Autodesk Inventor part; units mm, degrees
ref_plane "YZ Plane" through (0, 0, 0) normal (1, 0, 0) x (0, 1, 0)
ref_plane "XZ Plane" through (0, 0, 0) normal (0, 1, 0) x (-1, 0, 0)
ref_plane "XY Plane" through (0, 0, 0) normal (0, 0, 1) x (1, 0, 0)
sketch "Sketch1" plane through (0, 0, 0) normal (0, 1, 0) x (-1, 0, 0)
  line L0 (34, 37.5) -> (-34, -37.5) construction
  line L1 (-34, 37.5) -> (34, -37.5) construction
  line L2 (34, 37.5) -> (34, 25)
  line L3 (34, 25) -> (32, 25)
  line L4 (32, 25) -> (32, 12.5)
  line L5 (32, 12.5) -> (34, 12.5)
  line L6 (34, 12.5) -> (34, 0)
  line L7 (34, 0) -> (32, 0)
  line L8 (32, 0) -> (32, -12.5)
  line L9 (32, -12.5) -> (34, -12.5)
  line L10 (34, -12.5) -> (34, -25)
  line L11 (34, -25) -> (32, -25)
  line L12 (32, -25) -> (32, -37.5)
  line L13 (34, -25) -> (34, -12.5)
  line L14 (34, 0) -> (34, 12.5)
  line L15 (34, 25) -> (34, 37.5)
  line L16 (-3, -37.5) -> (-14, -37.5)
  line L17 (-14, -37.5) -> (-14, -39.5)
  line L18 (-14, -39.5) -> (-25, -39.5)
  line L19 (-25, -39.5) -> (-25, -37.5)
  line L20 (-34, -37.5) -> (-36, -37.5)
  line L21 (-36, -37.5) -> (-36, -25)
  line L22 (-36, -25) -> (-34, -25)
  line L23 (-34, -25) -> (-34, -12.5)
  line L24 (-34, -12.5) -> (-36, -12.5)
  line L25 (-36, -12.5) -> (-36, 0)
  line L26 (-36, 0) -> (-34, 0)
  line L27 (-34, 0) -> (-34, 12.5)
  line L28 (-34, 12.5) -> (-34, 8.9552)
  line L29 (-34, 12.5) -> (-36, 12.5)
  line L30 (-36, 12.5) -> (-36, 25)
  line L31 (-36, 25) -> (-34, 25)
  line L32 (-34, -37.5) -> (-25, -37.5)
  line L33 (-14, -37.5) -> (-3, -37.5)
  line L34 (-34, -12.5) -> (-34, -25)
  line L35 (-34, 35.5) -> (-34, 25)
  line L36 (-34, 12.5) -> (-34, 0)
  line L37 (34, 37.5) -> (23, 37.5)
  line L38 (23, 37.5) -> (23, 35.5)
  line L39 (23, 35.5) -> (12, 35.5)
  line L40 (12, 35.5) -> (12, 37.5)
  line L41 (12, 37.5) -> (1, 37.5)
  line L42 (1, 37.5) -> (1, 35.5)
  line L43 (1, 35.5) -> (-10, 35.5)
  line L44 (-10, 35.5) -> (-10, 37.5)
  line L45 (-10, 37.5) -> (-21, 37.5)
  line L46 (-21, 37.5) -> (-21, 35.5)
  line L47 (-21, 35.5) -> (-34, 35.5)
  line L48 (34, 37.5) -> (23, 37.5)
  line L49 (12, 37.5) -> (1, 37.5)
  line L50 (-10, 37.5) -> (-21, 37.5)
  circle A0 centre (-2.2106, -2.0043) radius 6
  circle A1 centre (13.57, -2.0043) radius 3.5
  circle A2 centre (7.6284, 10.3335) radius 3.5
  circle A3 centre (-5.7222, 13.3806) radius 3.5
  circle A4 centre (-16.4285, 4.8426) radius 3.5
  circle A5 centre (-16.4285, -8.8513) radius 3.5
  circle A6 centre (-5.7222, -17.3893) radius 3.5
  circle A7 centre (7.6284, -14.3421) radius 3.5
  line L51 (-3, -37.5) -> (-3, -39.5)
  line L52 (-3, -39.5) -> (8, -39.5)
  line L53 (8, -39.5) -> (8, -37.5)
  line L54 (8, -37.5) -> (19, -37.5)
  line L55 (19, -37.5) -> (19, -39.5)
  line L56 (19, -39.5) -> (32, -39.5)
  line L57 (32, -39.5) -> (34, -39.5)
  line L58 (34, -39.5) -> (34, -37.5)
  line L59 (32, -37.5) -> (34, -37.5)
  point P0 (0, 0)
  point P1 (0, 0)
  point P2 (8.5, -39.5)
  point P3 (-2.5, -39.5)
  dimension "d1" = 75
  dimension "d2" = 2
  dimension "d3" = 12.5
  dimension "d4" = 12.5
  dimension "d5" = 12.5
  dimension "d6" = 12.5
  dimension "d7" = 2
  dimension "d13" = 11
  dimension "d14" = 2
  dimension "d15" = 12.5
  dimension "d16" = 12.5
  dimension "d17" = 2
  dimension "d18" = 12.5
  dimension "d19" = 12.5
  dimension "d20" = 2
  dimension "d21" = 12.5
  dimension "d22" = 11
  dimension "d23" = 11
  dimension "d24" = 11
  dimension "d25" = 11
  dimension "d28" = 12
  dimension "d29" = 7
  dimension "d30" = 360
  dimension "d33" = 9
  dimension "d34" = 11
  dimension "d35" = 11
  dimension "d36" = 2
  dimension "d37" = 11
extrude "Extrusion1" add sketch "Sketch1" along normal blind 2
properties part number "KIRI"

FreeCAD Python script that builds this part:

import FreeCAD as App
import Part
import Sketcher


def add_polygon(sketch, points):
    """Adds a closed chain of lines whose ends are joined by coincident constraints."""
    first, n = sketch.GeometryCount, len(points)
    for a, b in zip(points, points[1:] + points[:1]):
        sketch.addGeometry(Part.LineSegment(App.Vector(*a, 0), App.Vector(*b, 0)), False)
    for i in range(n):
        sketch.addConstraint(Sketcher.Constraint("Coincident", first + i, 2, first + (i + 1) % n, 1))

doc = App.newDocument("Part")
params = doc.addObject("Spreadsheet::Sheet", "Params")
for row, (alias, value) in enumerate([
    ("sketch1_diameter", "7 mm"),
    ("sketch1_diameter2", "12 mm"),
    ("sketch1_width", "11 mm"),
    ("sketch1_width2", "2 mm"),
    ("sketch1_height", "12.5 mm"),
    ("pad1_length", "2 mm"),
], start=1):
    params.set(f"A{row}", alias)
    params.set(f"B{row}", "=" + value)
    params.setAlias(f"B{row}", alias)

body = doc.addObject("PartDesign::Body", "Body")

sketch1 = body.newObject("Sketcher::SketchObject", "Sketch")
sketch1.AttachmentSupport = (doc.getObject("XZ_Plane"), [""])
sketch1.MapMode = "FlatFace"
add_polygon(sketch1, [(-34, 25), (-34, 37.5), (-23, 37.5), (-23, 35.5), (-12, 35.5), (-12, 37.5), (-1, 37.5), (-1, 35.5), (10, 35.5), (10, 37.5), (21, 37.5), (21, 35.5), (34, 35.5), (34, 25), (36, 25), (36, 12.5), (34, 12.5), (34, 0), (36, 0), (36, -12.5), (34, -12.5), (34, -25), (36, -25), (36, -37.5), (25, -37.5), (25, -39.5), (14, -39.5), (14, -37.5), (3, -37.5), (3, -39.5), (-8, -39.5), (-8, -37.5), (-19, -37.5), (-19, -39.5), (-34, -39.5), (-34, -37.5), (-32, -37.5), (-32, -25), (-34, -25), (-34, -12.5), (-32, -12.5), (-32, 0), (-34, 0), (-34, 12.5), (-32, 12.5), (-32, 25)])
sketch1.addGeometry(Part.Circle(App.Vector(5.7, -17.4, 0), App.Vector(0, 0, 1), 3.5), False)
sketch1.addGeometry(Part.Circle(App.Vector(16.4, -8.9, 0), App.Vector(0, 0, 1), 3.5), False)
sketch1.addGeometry(Part.Circle(App.Vector(2.2, -2, 0), App.Vector(0, 0, 1), 6), False)
sketch1.addGeometry(Part.Circle(App.Vector(-7.6, -14.3, 0), App.Vector(0, 0, 1), 3.5), False)
sketch1.addGeometry(Part.Circle(App.Vector(-13.6, -2, 0), App.Vector(0, 0, 1), 3.5), False)
sketch1.addGeometry(Part.Circle(App.Vector(16.4, 4.8, 0), App.Vector(0, 0, 1), 3.5), False)
sketch1.addGeometry(Part.Circle(App.Vector(5.7, 13.4, 0), App.Vector(0, 0, 1), 3.5), False)
sketch1.addGeometry(Part.Circle(App.Vector(-7.6, 10.3, 0), App.Vector(0, 0, 1), 3.5), False)
sketch1.addConstraint([
    Sketcher.Constraint("Vertical", 0),
    Sketcher.Constraint("Horizontal", 1),
    Sketcher.Constraint("Vertical", 2),
    Sketcher.Constraint("Horizontal", 3),
    Sketcher.Constraint("Vertical", 4),
    Sketcher.Constraint("Horizontal", 5),
    Sketcher.Constraint("Vertical", 6),
    Sketcher.Constraint("Horizontal", 7),
    Sketcher.Constraint("Vertical", 8),
    Sketcher.Constraint("Horizontal", 9),
    Sketcher.Constraint("Vertical", 10),
    Sketcher.Constraint("Horizontal", 11),
    Sketcher.Constraint("Vertical", 12),
    Sketcher.Constraint("Horizontal", 13),
    Sketcher.Constraint("Vertical", 14),
    Sketcher.Constraint("Horizontal", 15),
    Sketcher.Constraint("Vertical", 16),
    Sketcher.Constraint("Horizontal", 17),
    Sketcher.Constraint("Vertical", 18),
    Sketcher.Constraint("Horizontal", 19),
    Sketcher.Constraint("Vertical", 20),
    Sketcher.Constraint("Horizontal", 21),
    Sketcher.Constraint("Vertical", 22),
    Sketcher.Constraint("Horizontal", 23),
    Sketcher.Constraint("Vertical", 24),
    Sketcher.Constraint("Horizontal", 25),
    Sketcher.Constraint("Vertical", 26),
    Sketcher.Constraint("Horizontal", 27),
    Sketcher.Constraint("Vertical", 28),
    Sketcher.Constraint("Horizontal", 29),
    Sketcher.Constraint("Vertical", 30),
    Sketcher.Constraint("Horizontal", 31),
    Sketcher.Constraint("Vertical", 32),
    Sketcher.Constraint("Horizontal", 33),
    Sketcher.Constraint("Vertical", 34),
    Sketcher.Constraint("Horizontal", 35),
    Sketcher.Constraint("Vertical", 36),
    Sketcher.Constraint("Horizontal", 37),
    Sketcher.Constraint("Vertical", 38),
    Sketcher.Constraint("Horizontal", 39),
    Sketcher.Constraint("Vertical", 40),
    Sketcher.Constraint("Horizontal", 41),
    Sketcher.Constraint("Vertical", 42),
    Sketcher.Constraint("Horizontal", 43),
    Sketcher.Constraint("Vertical", 44),
    Sketcher.Constraint("Horizontal", 45),
    Sketcher.Constraint("Equal", 46, 47),
    Sketcher.Constraint("Equal", 47, 49),
    Sketcher.Constraint("Equal", 49, 50),
    Sketcher.Constraint("Equal", 50, 51),
    Sketcher.Constraint("Equal", 51, 52),
    Sketcher.Constraint("Equal", 52, 53),
    Sketcher.Constraint("Symmetric", 12, 2, 37, 2, -1, 1),
    Sketcher.Constraint("Symmetric", 15, 2, 38, 2, -1, 1),
    Sketcher.Constraint("Symmetric", 16, 2, 41, 2, -1, 1),
    Sketcher.Constraint("Symmetric", 19, 2, 42, 2, -1, 1),
    Sketcher.Constraint("Symmetric", 20, 2, 45, 2, -1, 1),
    Sketcher.Constraint("Symmetric", 14, 2, 18, 2, -1),
    Sketcher.Constraint("Symmetric", 13, 2, 21, 2, -1),
    Sketcher.Constraint("Symmetric", 0, 2, 34, 2, -1),
    Sketcher.Constraint("PointOnObject", 16, 2, -1),
    Sketcher.Constraint("Horizontal", 48, 3, 50, 3),
    Sketcher.Constraint("Horizontal", 1, 2, 4, 2),
    Sketcher.Constraint("Horizontal", 3, 2, 6, 2),
    Sketcher.Constraint("Horizontal", 5, 2, 8, 2),
    Sketcher.Constraint("Horizontal", 7, 2, 10, 2),
    Sketcher.Constraint("Horizontal", 23, 2, 26, 2),
    Sketcher.Constraint("Horizontal", 25, 2, 28, 2),
    Sketcher.Constraint("Horizontal", 27, 2, 30, 2),
    Sketcher.Constraint("Horizontal", 29, 2, 32, 2),
    Sketcher.Constraint("Horizontal", 31, 2, 34, 2),
    Sketcher.Constraint("Vertical", 47, 3, 51, 3),
    Sketcher.Constraint("Vertical", 46, 3, 52, 3),
    Sketcher.Constraint("Vertical", 49, 3, 53, 3),
    Sketcher.Constraint("Vertical", 36, 2, 39, 2),
    Sketcher.Constraint("Vertical", 40, 2, 43, 2),
    Sketcher.Constraint("Equal", 1, 3),
    Sketcher.Constraint("Equal", 3, 5),
    Sketcher.Constraint("Equal", 5, 7),
    Sketcher.Constraint("Equal", 7, 9),
    Sketcher.Constraint("Equal", 9, 23),
    Sketcher.Constraint("Equal", 23, 25),
    Sketcher.Constraint("Equal", 25, 27),
    Sketcher.Constraint("Equal", 27, 29),
    Sketcher.Constraint("Equal", 29, 31),
    Sketcher.Constraint("Equal", 21, 35),
    Sketcher.Constraint("Equal", 45, 2),
    Sketcher.Constraint("Equal", 0, 14),
    Sketcher.Constraint("Equal", 14, 16),
    Sketcher.Constraint("Equal", 10, 24),
    Sketcher.Constraint("Diameter", 46, 7.0),
    Sketcher.Constraint("Diameter", 48, 12.0),
    Sketcher.Constraint("DistanceX", 1, 1, 1, 2, 11.0),
    Sketcher.Constraint("DistanceX", 13, 1, 13, 2, 2.0),
    Sketcher.Constraint("DistanceY", 0, 1, 0, 2, 12.5),
    Sketcher.Constraint("DistanceX", 3, 2, -1, 1, 12.0),
    Sketcher.Constraint("DistanceX", 50, 3, -1, 1, 13.57),
    Sketcher.Constraint("DistanceY", 49, 3, -1, 1, 14.342),
    Sketcher.Constraint("DistanceY", 46, 3, 47, 3, 8.538),
    Sketcher.Constraint("DistanceY", 46, 3, 48, 3, 15.385),
    Sketcher.Constraint("DistanceX", 48, 3, 47, 3, 14.218),
    Sketcher.Constraint("DistanceX", 49, 3, 48, 3, 9.839),
    Sketcher.Constraint("DistanceY", 47, 3, 51, 3, 13.694),
    Sketcher.Constraint("DistanceY", 51, 3, 52, 3, 8.538),
    Sketcher.Constraint("DistanceY", 53, 3, 52, 3, 3.047),
    Sketcher.Constraint("DistanceX", -1, 1, 46, 3, 5.7222),
    Sketcher.Constraint("DistanceY", 46, 3, -1, 1, 17.3893),
    Sketcher.Constraint("DistanceX", -1, 1, 47, 3, 16.4285),
])
sketch1.setExpression("Constraints[136]", "Params.sketch1_diameter")
sketch1.setExpression("Constraints[137]", "Params.sketch1_diameter2")
sketch1.setExpression("Constraints[138]", "Params.sketch1_width")
sketch1.setExpression("Constraints[139]", "Params.sketch1_width2")
sketch1.setExpression("Constraints[140]", "Params.sketch1_height")
pad1 = body.newObject("PartDesign::Pad", "Pad")
pad1.Profile = sketch1
pad1.setExpression("Length", "Params.pad1_length")
pad1.Reversed = True

doc.recompute()
